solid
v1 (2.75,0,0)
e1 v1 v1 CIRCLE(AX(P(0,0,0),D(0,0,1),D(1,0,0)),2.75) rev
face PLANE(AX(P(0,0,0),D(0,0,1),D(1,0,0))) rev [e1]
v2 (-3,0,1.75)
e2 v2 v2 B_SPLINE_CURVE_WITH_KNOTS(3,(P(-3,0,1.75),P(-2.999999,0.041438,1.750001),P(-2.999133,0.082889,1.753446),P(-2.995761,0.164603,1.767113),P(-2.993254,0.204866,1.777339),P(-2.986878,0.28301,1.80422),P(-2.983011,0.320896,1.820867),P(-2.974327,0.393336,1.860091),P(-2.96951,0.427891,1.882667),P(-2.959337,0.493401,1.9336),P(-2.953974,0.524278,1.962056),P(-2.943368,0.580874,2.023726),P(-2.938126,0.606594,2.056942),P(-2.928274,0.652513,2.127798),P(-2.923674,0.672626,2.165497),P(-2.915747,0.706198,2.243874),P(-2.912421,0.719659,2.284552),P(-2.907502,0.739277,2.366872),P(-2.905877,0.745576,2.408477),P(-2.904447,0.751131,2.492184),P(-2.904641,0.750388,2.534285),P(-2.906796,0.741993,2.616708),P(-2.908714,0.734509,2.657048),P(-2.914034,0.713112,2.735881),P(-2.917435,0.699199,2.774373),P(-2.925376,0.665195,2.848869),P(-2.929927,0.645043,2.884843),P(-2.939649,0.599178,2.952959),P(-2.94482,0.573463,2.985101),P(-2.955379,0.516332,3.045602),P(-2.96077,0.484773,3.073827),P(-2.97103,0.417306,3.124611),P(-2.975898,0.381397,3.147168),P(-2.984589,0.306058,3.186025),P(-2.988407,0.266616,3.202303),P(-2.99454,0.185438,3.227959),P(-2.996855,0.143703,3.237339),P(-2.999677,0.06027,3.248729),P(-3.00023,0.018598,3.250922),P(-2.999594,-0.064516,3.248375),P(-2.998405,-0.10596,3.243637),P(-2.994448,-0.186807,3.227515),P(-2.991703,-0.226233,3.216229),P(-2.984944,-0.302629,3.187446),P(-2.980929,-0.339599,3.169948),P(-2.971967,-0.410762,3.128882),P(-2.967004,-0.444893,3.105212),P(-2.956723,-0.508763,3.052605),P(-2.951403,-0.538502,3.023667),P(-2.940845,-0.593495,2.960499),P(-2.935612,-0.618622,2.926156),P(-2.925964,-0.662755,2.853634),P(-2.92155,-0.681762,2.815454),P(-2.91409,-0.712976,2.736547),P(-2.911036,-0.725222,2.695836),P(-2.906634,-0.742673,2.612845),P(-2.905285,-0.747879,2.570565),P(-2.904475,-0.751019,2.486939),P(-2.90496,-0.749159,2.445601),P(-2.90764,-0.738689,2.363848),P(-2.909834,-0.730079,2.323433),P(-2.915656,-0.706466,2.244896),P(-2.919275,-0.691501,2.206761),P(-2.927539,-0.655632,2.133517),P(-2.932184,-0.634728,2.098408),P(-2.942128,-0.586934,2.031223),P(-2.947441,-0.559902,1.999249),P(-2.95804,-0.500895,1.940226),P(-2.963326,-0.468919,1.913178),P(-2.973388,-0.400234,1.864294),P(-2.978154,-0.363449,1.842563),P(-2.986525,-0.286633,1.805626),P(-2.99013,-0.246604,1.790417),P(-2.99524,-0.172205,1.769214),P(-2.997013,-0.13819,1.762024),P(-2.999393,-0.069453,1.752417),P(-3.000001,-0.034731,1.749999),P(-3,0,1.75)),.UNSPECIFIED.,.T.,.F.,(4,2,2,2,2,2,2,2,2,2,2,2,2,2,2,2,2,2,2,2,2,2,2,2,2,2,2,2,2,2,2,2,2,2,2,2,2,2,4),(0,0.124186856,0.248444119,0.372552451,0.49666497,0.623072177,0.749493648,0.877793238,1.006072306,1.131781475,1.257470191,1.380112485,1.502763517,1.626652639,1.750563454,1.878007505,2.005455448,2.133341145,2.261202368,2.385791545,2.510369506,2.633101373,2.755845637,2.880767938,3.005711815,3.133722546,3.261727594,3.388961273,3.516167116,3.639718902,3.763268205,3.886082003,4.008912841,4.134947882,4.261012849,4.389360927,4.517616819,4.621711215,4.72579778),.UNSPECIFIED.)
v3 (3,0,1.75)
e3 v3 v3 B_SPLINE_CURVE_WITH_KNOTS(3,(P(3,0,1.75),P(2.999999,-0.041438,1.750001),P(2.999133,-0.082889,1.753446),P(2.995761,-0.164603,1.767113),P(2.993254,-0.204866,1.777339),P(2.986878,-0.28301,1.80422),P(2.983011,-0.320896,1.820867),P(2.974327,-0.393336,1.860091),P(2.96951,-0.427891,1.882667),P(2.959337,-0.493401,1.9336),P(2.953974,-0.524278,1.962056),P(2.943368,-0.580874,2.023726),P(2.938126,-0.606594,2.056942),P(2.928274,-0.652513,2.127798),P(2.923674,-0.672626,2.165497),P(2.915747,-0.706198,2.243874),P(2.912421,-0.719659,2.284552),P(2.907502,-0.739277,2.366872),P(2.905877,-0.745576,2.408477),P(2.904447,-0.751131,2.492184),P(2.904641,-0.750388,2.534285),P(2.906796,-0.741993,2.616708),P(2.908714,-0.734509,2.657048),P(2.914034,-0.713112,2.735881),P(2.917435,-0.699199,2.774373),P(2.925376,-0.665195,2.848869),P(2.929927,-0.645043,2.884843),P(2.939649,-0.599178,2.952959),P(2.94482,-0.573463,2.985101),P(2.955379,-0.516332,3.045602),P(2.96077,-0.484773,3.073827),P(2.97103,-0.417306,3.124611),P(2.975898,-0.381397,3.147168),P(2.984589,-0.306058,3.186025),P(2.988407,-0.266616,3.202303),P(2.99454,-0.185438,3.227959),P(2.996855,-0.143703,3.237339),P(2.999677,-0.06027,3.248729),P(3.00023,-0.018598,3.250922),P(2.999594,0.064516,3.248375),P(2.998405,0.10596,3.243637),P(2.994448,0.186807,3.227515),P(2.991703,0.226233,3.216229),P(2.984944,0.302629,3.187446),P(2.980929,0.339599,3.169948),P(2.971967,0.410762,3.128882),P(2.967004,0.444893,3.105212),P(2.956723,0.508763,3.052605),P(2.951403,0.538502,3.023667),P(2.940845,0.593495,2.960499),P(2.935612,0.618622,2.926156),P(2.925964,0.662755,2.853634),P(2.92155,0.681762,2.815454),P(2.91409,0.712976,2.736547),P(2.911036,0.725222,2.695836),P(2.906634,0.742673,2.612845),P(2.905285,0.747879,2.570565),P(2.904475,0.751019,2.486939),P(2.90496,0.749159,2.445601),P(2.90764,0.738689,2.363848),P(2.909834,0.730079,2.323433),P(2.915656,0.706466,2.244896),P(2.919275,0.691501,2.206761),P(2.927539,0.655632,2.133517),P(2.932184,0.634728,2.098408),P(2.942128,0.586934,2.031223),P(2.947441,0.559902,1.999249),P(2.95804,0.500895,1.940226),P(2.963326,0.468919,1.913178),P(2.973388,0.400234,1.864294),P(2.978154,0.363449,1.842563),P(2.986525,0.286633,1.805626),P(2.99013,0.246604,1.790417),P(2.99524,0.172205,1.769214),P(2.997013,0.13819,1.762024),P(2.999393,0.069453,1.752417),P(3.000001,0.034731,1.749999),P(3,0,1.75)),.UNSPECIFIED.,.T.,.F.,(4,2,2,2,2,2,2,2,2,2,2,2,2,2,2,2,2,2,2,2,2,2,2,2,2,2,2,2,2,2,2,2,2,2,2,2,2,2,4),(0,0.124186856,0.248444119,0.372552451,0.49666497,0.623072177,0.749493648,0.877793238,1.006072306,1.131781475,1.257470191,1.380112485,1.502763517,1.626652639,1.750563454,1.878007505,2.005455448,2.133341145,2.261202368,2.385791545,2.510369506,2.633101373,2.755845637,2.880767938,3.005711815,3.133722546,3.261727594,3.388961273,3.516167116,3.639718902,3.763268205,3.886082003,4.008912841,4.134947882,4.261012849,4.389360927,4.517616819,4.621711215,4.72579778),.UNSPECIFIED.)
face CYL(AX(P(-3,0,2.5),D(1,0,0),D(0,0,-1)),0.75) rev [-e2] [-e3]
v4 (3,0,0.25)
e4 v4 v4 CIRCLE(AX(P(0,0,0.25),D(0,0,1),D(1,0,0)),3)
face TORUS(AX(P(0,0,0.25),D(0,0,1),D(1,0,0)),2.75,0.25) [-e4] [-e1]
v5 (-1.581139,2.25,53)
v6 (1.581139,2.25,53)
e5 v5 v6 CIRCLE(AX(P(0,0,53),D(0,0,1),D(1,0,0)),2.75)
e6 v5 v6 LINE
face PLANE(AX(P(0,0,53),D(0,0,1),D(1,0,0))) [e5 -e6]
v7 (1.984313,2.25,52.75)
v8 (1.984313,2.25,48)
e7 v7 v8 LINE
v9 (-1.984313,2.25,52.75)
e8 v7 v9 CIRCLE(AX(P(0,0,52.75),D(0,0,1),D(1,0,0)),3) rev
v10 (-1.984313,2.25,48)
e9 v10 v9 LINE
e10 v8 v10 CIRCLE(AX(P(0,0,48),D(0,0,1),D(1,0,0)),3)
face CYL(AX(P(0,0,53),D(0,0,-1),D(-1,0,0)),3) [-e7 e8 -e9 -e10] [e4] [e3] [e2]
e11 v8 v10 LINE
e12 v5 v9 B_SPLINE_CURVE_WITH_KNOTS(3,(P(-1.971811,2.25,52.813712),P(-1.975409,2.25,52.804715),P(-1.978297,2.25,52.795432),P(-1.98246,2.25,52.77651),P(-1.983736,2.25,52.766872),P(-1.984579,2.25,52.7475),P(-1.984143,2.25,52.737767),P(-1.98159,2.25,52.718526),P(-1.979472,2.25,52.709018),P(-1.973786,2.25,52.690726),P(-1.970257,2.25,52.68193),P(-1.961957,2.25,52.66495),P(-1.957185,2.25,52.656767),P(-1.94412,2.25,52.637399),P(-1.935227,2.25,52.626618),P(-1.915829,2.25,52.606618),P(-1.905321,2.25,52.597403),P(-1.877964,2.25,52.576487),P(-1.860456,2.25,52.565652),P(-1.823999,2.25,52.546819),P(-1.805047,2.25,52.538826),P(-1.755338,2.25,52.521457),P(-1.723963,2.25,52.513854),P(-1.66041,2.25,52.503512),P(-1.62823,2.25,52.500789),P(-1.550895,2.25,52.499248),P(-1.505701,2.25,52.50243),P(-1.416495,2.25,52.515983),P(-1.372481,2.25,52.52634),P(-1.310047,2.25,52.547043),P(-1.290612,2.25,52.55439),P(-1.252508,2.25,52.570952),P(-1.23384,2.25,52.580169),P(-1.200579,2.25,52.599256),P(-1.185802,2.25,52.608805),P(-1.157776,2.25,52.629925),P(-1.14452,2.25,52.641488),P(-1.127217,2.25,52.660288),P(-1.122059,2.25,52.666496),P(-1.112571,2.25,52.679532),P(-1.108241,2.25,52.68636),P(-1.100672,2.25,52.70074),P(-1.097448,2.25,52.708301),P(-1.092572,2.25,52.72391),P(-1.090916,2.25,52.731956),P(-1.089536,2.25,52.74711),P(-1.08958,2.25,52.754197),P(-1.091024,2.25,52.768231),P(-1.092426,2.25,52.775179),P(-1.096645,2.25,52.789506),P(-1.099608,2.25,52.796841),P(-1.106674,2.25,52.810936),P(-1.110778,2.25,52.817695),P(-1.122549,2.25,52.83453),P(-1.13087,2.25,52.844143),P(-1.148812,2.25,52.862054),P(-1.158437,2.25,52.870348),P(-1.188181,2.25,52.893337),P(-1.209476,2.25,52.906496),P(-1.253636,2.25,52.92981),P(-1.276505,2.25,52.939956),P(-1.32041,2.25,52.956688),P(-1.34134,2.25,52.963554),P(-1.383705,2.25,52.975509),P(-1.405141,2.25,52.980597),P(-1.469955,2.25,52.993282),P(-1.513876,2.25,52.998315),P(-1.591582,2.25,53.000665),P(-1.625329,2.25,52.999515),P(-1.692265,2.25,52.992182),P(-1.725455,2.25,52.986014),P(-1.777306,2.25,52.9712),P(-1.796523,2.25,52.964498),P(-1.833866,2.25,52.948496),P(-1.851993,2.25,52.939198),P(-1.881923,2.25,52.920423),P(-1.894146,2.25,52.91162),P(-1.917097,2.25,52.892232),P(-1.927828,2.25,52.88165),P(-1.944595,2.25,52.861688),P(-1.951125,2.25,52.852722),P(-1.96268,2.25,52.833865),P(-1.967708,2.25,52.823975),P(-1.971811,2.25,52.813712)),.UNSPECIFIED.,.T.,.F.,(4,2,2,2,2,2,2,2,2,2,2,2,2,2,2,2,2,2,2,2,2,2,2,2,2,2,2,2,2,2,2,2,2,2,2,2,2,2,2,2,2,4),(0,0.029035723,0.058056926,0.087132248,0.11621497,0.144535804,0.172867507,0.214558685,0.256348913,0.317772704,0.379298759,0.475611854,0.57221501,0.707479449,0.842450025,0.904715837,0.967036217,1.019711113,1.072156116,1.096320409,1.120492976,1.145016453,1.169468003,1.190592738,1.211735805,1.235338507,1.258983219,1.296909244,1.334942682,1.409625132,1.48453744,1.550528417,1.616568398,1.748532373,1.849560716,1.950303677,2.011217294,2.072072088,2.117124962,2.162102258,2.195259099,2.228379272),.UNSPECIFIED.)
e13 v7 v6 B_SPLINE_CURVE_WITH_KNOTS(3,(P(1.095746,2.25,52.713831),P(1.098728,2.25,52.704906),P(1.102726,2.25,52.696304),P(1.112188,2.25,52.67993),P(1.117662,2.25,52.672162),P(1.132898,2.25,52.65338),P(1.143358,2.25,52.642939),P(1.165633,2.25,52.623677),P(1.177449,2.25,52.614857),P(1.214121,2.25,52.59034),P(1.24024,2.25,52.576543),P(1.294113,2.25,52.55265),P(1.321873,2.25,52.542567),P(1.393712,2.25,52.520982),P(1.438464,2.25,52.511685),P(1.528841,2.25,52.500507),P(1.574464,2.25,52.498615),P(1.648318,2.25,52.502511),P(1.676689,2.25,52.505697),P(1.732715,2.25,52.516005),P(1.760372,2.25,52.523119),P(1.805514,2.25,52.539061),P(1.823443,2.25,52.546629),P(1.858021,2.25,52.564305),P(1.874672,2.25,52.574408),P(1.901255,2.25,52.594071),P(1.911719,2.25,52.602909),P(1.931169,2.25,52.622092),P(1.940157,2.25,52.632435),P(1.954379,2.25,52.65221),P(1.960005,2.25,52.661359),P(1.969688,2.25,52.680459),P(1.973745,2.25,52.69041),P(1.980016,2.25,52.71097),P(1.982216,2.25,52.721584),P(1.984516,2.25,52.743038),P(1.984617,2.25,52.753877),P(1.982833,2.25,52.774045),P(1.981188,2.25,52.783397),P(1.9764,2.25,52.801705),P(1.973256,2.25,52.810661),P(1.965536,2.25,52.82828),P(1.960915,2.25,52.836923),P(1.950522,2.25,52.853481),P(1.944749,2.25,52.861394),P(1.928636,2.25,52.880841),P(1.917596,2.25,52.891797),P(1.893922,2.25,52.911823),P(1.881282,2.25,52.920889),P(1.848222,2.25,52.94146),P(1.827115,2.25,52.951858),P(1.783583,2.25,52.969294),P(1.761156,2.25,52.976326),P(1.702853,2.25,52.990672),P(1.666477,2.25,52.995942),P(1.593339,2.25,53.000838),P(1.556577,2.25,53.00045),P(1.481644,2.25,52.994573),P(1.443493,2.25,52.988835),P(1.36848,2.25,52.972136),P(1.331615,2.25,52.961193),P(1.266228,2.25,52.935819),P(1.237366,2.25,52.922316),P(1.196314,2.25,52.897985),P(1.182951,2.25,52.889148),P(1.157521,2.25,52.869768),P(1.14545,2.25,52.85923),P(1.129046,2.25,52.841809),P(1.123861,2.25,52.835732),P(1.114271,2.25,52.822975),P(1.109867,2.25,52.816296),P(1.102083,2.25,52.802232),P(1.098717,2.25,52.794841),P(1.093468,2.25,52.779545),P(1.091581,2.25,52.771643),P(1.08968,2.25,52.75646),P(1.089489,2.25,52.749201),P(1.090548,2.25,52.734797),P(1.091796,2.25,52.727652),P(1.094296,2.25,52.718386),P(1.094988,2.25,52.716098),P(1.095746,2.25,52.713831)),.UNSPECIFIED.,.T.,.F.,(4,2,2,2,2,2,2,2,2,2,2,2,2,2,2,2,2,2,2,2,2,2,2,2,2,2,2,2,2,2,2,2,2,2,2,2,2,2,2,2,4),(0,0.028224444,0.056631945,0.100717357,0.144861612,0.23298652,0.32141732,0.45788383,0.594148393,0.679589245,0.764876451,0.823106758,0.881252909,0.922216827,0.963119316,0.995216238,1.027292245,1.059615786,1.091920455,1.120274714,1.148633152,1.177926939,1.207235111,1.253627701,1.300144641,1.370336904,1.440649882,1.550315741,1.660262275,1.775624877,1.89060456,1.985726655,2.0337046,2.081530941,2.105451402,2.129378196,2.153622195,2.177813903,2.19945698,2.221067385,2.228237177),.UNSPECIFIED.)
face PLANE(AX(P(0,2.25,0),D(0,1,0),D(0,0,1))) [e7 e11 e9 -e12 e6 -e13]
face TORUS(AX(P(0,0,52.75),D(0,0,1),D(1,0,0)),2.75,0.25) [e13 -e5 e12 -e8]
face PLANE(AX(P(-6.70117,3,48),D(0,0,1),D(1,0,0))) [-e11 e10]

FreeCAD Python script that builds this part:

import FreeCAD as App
import Part
import Sketcher
from FreeCAD import Vector
Q = App.Units.Quantity


def edges_at(feature, points):
    """Names of the edges that pass closest to the given points."""
    edges = feature.Shape.Edges
    near = lambda p: min(range(len(edges)), key=lambda i: edges[i].distToShape(Part.Vertex(*p))[0])
    return sorted({f"Edge{near(p) + 1}" for p in points})

doc = App.newDocument("Part")
body = doc.addObject("PartDesign::Body", "Body")

# Sketch on XY plane
sketch1 = body.newObject("Sketcher::SketchObject", "Sketch")
sketch1.AttachmentSupport = (doc.getObject("XY_Plane"), [""])
sketch1.MapMode = "FlatFace"
sketch1.addGeometry(Part.Circle(Vector(0, 0, 0), Vector(0, 0, 1), 3), False)
sketch1.addConstraint([
    Sketcher.Constraint("Coincident", 0, 3, -1, 1),
    Sketcher.Constraint("Diameter", 0, Q("6 mm")),
])
pad1 = body.newObject("PartDesign::Pad", "Pad")
pad1.Profile = sketch1
pad1.Length = 53
doc.recompute()

fillet = body.newObject("PartDesign::Fillet", "Fillet")
fillet.Base = (pad1, edges_at(pad1, [(-3, 0, 0), (-3, 0, 53)]))
fillet.Radius = 0.25

# Sketch on YZ plane
sketch2 = body.newObject("Sketcher::SketchObject", "Sketch001")
sketch2.AttachmentSupport = (doc.getObject("YZ_Plane"), [""])
sketch2.MapMode = "FlatFace"
sketch2.addGeometry(Part.Circle(Vector(0, 2.5, 0), Vector(0, 0, 1), 0.8), False)
sketch2.addConstraint([
    Sketcher.Constraint("PointOnObject", 0, 3, -2),
    Sketcher.Constraint("Diameter", 0, Q("1.5 mm")),
    Sketcher.Constraint("DistanceY", -1, 1, 0, 3, Q("2.5 mm")),
])
pocket1 = body.newObject("PartDesign::Pocket", "Pocket")
pocket1.Profile = sketch2
pocket1.Type = "ThroughAll"
pocket1.Midplane = True

# Sketch on XZ plane
sketch3 = body.newObject("Sketcher::SketchObject", "Sketch002")
sketch3.AttachmentSupport = (doc.getObject("XZ_Plane"), [""])
sketch3.MapMode = "FlatFace"
sketch3.AttachmentOffset = App.Placement(Vector(0, 0, -2.25), App.Rotation())
sketch3.addGeometry([
    Part.LineSegment(Vector(-7, 48, 0), Vector(-7, 53, 0)),
    Part.LineSegment(Vector(-7, 53, 0), Vector(8, 53, 0)),
    Part.LineSegment(Vector(8, 53, 0), Vector(8, 48, 0)),
    Part.LineSegment(Vector(8, 48, 0), Vector(-7, 48, 0)),
], False)
sketch3.addConstraint([
    Sketcher.Constraint("Coincident", 0, 2, 1, 1),
    Sketcher.Constraint("Coincident", 1, 2, 2, 1),
    Sketcher.Constraint("Coincident", 2, 2, 3, 1),
    Sketcher.Constraint("Coincident", 3, 2, 0, 1),
    Sketcher.Constraint("Vertical", 0),
    Sketcher.Constraint("Horizontal", 1),
    Sketcher.Constraint("Vertical", 2),
    Sketcher.Constraint("Horizontal", 3),
    Sketcher.Constraint("DistanceX", 1, 1, 1, 2, Q("15 mm")),
    Sketcher.Constraint("DistanceY", 0, 1, 0, 2, Q("5 mm")),
    Sketcher.Constraint("DistanceY", -1, 1, 0, 2, Q("53 mm")),
    Sketcher.Constraint("DistanceX", 0, 2, -1, 1, Q("6.70117 mm")),
])
pocket2 = body.newObject("PartDesign::Pocket", "Pocket001")
pocket2.Profile = sketch3
pocket2.Length = 53

doc.recompute()
